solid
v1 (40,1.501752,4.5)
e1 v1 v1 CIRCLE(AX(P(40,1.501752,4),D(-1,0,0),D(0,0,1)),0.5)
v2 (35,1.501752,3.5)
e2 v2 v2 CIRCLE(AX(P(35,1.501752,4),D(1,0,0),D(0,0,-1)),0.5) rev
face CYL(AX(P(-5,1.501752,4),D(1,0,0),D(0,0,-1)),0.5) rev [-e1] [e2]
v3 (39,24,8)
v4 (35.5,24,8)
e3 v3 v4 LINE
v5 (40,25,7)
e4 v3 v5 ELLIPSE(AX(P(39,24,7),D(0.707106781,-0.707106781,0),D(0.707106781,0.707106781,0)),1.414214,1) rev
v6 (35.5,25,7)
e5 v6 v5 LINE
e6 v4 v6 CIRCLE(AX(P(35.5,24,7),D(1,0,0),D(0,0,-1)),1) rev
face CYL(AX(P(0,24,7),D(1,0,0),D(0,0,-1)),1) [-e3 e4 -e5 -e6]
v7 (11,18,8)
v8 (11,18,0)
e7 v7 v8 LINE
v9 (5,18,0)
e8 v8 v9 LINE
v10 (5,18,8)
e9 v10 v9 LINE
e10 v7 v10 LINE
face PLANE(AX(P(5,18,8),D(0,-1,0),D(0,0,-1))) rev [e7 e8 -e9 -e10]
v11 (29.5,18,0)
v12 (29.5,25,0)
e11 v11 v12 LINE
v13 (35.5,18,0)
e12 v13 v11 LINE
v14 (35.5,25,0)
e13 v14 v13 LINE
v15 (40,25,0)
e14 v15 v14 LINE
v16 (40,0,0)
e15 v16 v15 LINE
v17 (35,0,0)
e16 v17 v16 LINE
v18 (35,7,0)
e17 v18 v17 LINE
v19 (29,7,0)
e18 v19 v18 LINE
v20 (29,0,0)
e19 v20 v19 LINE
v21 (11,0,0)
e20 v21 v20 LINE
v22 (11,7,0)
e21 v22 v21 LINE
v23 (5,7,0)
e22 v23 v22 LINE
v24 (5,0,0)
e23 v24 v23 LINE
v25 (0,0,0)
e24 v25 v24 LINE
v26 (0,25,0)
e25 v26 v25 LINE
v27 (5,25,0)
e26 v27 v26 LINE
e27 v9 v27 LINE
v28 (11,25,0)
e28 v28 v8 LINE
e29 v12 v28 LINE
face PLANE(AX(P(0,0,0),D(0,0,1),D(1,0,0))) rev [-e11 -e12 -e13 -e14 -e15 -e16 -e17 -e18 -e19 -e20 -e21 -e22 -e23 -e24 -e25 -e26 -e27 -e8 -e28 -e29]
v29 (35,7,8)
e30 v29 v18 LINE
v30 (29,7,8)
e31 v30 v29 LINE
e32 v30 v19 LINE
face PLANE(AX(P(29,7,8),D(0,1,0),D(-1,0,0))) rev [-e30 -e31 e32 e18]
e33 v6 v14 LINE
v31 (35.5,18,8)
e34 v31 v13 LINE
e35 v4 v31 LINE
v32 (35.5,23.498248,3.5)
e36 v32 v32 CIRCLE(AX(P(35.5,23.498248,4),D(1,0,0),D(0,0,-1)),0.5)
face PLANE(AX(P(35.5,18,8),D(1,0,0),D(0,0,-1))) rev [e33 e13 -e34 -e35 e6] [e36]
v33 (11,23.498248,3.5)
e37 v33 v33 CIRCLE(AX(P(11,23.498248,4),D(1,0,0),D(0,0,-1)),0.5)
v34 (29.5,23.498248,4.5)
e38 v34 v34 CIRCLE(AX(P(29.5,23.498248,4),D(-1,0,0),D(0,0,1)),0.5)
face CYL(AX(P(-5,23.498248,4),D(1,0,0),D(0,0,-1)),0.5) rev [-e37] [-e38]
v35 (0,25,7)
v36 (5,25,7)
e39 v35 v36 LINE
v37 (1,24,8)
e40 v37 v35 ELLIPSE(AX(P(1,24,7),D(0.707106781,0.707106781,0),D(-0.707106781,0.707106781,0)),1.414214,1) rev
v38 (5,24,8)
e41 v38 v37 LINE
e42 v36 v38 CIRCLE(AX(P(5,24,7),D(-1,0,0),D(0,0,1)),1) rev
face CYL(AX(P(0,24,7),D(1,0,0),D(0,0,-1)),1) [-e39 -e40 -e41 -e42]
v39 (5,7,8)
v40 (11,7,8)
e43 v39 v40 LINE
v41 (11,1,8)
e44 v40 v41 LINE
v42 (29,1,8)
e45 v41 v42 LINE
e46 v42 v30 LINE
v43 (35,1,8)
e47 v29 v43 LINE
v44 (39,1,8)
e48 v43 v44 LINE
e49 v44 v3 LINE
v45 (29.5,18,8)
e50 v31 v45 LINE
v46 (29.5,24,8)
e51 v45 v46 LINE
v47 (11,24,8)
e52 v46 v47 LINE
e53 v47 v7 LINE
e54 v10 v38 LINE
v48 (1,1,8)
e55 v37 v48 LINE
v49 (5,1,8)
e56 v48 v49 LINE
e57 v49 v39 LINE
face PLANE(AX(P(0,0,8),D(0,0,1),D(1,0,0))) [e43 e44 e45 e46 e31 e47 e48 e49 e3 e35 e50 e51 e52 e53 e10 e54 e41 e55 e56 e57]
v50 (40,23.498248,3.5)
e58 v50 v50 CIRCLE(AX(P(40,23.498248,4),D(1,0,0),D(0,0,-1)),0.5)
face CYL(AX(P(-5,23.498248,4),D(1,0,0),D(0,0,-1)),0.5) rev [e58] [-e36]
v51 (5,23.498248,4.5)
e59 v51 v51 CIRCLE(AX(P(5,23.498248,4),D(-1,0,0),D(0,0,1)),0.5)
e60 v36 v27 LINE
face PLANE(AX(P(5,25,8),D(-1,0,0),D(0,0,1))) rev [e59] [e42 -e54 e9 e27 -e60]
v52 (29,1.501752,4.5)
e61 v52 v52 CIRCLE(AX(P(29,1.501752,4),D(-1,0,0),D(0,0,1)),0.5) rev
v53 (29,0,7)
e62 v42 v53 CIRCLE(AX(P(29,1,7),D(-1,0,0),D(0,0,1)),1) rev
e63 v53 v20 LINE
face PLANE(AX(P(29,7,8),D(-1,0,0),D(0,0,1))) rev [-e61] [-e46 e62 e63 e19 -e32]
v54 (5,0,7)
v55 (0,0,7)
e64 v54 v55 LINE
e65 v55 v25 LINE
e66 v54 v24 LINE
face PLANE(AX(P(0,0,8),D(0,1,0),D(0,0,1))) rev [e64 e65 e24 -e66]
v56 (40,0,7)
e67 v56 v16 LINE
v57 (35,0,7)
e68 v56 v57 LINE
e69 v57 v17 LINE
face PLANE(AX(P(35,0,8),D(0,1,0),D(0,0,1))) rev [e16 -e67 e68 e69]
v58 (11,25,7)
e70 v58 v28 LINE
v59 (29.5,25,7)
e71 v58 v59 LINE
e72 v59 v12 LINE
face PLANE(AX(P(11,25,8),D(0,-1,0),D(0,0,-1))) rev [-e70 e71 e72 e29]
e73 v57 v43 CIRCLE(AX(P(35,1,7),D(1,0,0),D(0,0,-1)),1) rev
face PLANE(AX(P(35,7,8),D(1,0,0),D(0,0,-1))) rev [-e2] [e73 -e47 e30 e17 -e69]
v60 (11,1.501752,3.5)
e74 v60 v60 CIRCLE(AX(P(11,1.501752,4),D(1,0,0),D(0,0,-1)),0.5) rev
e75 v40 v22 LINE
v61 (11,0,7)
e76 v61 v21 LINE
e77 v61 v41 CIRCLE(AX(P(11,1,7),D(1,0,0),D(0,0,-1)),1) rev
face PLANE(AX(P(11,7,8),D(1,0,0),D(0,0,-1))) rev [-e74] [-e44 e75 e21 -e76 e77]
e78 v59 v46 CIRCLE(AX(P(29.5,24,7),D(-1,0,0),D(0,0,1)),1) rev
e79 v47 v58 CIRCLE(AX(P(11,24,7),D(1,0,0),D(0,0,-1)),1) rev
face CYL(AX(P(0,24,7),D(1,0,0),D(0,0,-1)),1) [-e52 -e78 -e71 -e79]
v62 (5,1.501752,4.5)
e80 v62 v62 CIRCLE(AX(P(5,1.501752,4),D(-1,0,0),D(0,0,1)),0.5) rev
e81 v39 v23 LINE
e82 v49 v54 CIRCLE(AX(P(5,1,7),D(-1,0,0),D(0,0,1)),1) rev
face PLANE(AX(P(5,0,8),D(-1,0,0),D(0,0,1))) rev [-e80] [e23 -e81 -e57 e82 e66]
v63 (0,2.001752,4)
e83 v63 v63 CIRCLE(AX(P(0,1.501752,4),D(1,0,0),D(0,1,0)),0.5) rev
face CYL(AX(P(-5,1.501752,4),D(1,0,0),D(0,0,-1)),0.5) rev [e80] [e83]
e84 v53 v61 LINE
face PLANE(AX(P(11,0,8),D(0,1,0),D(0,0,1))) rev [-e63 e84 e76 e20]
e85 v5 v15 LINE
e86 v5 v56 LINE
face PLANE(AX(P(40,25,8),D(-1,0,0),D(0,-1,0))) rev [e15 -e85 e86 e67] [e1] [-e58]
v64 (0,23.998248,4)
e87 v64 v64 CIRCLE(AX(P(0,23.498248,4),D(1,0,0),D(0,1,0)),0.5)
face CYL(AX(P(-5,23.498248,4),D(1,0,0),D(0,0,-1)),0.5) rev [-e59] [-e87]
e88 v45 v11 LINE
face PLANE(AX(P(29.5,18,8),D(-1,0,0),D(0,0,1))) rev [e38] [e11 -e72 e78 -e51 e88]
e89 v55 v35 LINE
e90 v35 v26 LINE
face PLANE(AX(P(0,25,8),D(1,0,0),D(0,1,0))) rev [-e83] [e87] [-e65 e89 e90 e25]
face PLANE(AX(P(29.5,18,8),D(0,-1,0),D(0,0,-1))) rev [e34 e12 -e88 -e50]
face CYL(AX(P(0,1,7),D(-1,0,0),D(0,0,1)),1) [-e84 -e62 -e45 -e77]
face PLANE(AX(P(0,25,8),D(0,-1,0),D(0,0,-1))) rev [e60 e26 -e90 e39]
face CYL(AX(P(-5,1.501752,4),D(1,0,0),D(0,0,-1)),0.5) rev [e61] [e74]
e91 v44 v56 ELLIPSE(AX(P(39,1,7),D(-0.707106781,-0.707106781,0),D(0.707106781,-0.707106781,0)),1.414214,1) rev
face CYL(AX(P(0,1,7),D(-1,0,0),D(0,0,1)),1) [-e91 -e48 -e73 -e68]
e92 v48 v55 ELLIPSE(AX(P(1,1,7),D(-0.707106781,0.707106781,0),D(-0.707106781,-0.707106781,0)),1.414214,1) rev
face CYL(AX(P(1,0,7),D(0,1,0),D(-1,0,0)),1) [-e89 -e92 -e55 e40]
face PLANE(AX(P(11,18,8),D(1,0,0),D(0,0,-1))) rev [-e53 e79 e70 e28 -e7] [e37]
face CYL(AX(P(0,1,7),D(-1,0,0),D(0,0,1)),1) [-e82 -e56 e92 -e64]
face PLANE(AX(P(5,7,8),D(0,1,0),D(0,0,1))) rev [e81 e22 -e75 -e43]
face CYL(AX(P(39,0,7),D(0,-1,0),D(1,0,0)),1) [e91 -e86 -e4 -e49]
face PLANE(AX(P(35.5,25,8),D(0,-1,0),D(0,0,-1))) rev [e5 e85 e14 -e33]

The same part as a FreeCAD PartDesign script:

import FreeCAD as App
import Part
import Sketcher
from FreeCAD import Vector
Q = App.Units.Quantity


def edges_at(feature, points):
    """Names of the edges that pass closest to the given points."""
    edges = feature.Shape.Edges
    near = lambda p: min(range(len(edges)), key=lambda i: edges[i].distToShape(Part.Vertex(*p))[0])
    return sorted({f"Edge{near(p) + 1}" for p in points})

doc = App.newDocument("Part")
params = doc.addObject("Spreadsheet::Sheet", "Params")
for row, (alias, value) in enumerate([
    ("sketch1_width", "5 mm"),
    ("sketch1_width2", "6 mm"),
    ("sketch1_width3", "18 mm"),
    ("sketch1_height", "7 mm"),
    ("sketch1_height2", "25 mm"),
    ("pad1_length", "8 mm"),
    ("sketch2_diameter", "1 mm"),
    ("pocket1_length", "45 mm"),
    ("fillet_radius", "1 mm"),
    ("fillet2_radius", "1 mm"),
    ("fillet3_radius", "1 mm"),
    ("fillet4_radius", "1 mm"),
], start=1):
    params.set(f"A{row}", alias)
    params.set(f"B{row}", "=" + value)
    params.setAlias(f"B{row}", alias)

body = doc.addObject("PartDesign::Body", "Body")

sketch1 = body.newObject("Sketcher::SketchObject", "Sketch")
sketch1.AttachmentSupport = (doc.getObject("XY_Plane"), [""])
sketch1.MapMode = "FlatFace"
sketch1.addGeometry(Part.LineSegment(Vector(0, 0, 0), Vector(5, 0, 0)), False)
sketch1.addGeometry(Part.LineSegment(Vector(5, 0, 0), Vector(5, 7, 0)), False)
sketch1.addGeometry(Part.LineSegment(Vector(5, 7, 0), Vector(11, 7, 0)), False)
sketch1.addGeometry(Part.LineSegment(Vector(11, 7, 0), Vector(11, 0, 0)), False)
sketch1.addGeometry(Part.LineSegment(Vector(11, 0, 0), Vector(29, 0, 0)), False)
sketch1.addGeometry(Part.LineSegment(Vector(29, 0, 0), Vector(29, 7, 0)), False)
sketch1.addGeometry(Part.LineSegment(Vector(29, 7, 0), Vector(35, 7, 0)), False)
sketch1.addGeometry(Part.LineSegment(Vector(35, 7, 0), Vector(35, 0, 0)), False)
sketch1.addGeometry(Part.LineSegment(Vector(35, 0, 0), Vector(40, 0, 0)), False)
sketch1.addGeometry(Part.LineSegment(Vector(40, 0, 0), Vector(40, 25, 0)), False)
sketch1.addGeometry(Part.LineSegment(Vector(40, 25, 0), Vector(35.5, 25, 0)), False)
sketch1.addGeometry(Part.LineSegment(Vector(35.5, 25, 0), Vector(35.5, 18, 0)), False)
sketch1.addGeometry(Part.LineSegment(Vector(35.5, 18, 0), Vector(29.5, 18, 0)), False)
sketch1.addGeometry(Part.LineSegment(Vector(29.5, 18, 0), Vector(29.5, 25, 0)), False)
sketch1.addGeometry(Part.LineSegment(Vector(29.5, 25, 0), Vector(11, 25, 0)), False)
sketch1.addGeometry(Part.LineSegment(Vector(11, 25, 0), Vector(11, 18, 0)), False)
sketch1.addGeometry(Part.LineSegment(Vector(11, 18, 0), Vector(5, 18, 0)), False)
sketch1.addGeometry(Part.LineSegment(Vector(5, 18, 0), Vector(5, 25, 0)), False)
sketch1.addGeometry(Part.LineSegment(Vector(5, 25, 0), Vector(0, 25, 0)), False)
sketch1.addGeometry(Part.LineSegment(Vector(0, 25, 0), Vector(0, 0, 0)), False)
sketch1.addConstraint(Sketcher.Constraint("Coincident", 0, 2, 1, 1))
sketch1.addConstraint(Sketcher.Constraint("Coincident", 1, 2, 2, 1))
sketch1.addConstraint(Sketcher.Constraint("Coincident", 2, 2, 3, 1))
sketch1.addConstraint(Sketcher.Constraint("Coincident", 3, 2, 4, 1))
sketch1.addConstraint(Sketcher.Constraint("Coincident", 4, 2, 5, 1))
sketch1.addConstraint(Sketcher.Constraint("Coincident", 5, 2, 6, 1))
sketch1.addConstraint(Sketcher.Constraint("Coincident", 6, 2, 7, 1))
sketch1.addConstraint(Sketcher.Constraint("Coincident", 7, 2, 8, 1))
sketch1.addConstraint(Sketcher.Constraint("Coincident", 8, 2, 9, 1))
sketch1.addConstraint(Sketcher.Constraint("Coincident", 9, 2, 10, 1))
sketch1.addConstraint(Sketcher.Constraint("Coincident", 10, 2, 11, 1))
sketch1.addConstraint(Sketcher.Constraint("Coincident", 11, 2, 12, 1))
sketch1.addConstraint(Sketcher.Constraint("Coincident", 12, 2, 13, 1))
sketch1.addConstraint(Sketcher.Constraint("Coincident", 13, 2, 14, 1))
sketch1.addConstraint(Sketcher.Constraint("Coincident", 14, 2, 15, 1))
sketch1.addConstraint(Sketcher.Constraint("Coincident", 15, 2, 16, 1))
sketch1.addConstraint(Sketcher.Constraint("Coincident", 16, 2, 17, 1))
sketch1.addConstraint(Sketcher.Constraint("Coincident", 17, 2, 18, 1))
sketch1.addConstraint(Sketcher.Constraint("Coincident", 18, 2, 19, 1))
sketch1.addConstraint(Sketcher.Constraint("Coincident", 19, 2, 0, 1))
sketch1.addConstraint(Sketcher.Constraint("Horizontal", 0))
sketch1.addConstraint(Sketcher.Constraint("Vertical", 1))
sketch1.addConstraint(Sketcher.Constraint("Horizontal", 2))
sketch1.addConstraint(Sketcher.Constraint("Vertical", 3))
sketch1.addConstraint(Sketcher.Constraint("Horizontal", 4))
sketch1.addConstraint(Sketcher.Constraint("Vertical", 5))
sketch1.addConstraint(Sketcher.Constraint("Horizontal", 6))
sketch1.addConstraint(Sketcher.Constraint("Vertical", 7))
sketch1.addConstraint(Sketcher.Constraint("Horizontal", 8))
sketch1.addConstraint(Sketcher.Constraint("Vertical", 9))
sketch1.addConstraint(Sketcher.Constraint("Horizontal", 10))
sketch1.addConstraint(Sketcher.Constraint("Vertical", 11))
sketch1.addConstraint(Sketcher.Constraint("Horizontal", 12))
sketch1.addConstraint(Sketcher.Constraint("Vertical", 13))
sketch1.addConstraint(Sketcher.Constraint("Horizontal", 14))
sketch1.addConstraint(Sketcher.Constraint("Vertical", 15))
sketch1.addConstraint(Sketcher.Constraint("Horizontal", 16))
sketch1.addConstraint(Sketcher.Constraint("Vertical", 17))
sketch1.addConstraint(Sketcher.Constraint("Horizontal", 18))
sketch1.addConstraint(Sketcher.Constraint("Vertical", 19))
sketch1.addConstraint(Sketcher.Constraint("Coincident", 19, 2, -1, 1))
sketch1.addConstraint(Sketcher.Constraint("PointOnObject", 3, 2, -1))
sketch1.addConstraint(Sketcher.Constraint("PointOnObject", 7, 2, -1))
sketch1.addConstraint(Sketcher.Constraint("Horizontal", 2, 2, 5, 2))
sketch1.addConstraint(Sketcher.Constraint("Horizontal", 10, 2, 13, 2))
sketch1.addConstraint(Sketcher.Constraint("Horizontal", 12, 2, 15, 2))
sketch1.addConstraint(Sketcher.Constraint("Horizontal", 14, 2, 17, 2))
sketch1.addConstraint(Sketcher.Constraint("Vertical", 3, 2, 14, 2))
sketch1.addConstraint(Sketcher.Constraint("Vertical", 1, 2, 16, 2))
sketch1.addConstraint(Sketcher.Constraint("Equal", 2, 6))
sketch1.addConstraint(Sketcher.Constraint("Equal", 0, 8))
sketch1.addConstraint(Sketcher.Constraint("Equal", 6, 12))
sketch1.addConstraint(Sketcher.Constraint("Equal", 7, 11))
sketch1.addConstraint(Sketcher.Constraint("DistanceX", 0, 1, 0, 2, Q("5 mm")))
sketch1.addConstraint(Sketcher.Constraint("DistanceX", 2, 1, 2, 2, Q("6 mm")))
sketch1.addConstraint(Sketcher.Constraint("DistanceX", 4, 1, 4, 2, Q("18 mm")))
sketch1.addConstraint(Sketcher.Constraint("DistanceY", 1, 1, 1, 2, Q("7 mm")))
sketch1.addConstraint(Sketcher.Constraint("DistanceY", 9, 1, 9, 2, Q("25 mm")))
sketch1.addConstraint(Sketcher.Constraint("DistanceX", 10, 2, 10, 1, Q("4.5 mm")))
sketch1.setExpression("Constraints[53]", "Params.sketch1_width")
sketch1.setExpression("Constraints[54]", "Params.sketch1_width2")
sketch1.setExpression("Constraints[55]", "Params.sketch1_width3")
sketch1.setExpression("Constraints[56]", "Params.sketch1_height")
sketch1.setExpression("Constraints[57]", "Params.sketch1_height2")
pad1 = body.newObject("PartDesign::Pad", "Pad")
pad1.Profile = sketch1
pad1.setExpression("Length", "Params.pad1_length")

sketch2 = body.newObject("Sketcher::SketchObject", "Sketch001")
sketch2.AttachmentSupport = (doc.getObject("YZ_Plane"), [""])
sketch2.MapMode = "FlatFace"
sketch2.AttachmentOffset = App.Placement(Vector(0, 0, 40), App.Rotation())
sketch2.addGeometry(Part.Circle(Vector(23.5, 4, 0), Vector(0, 0, 1), 0.5), False)
sketch2.addGeometry(Part.Circle(Vector(1.5, 4, 0), Vector(0, 0, 1), 0.5), False)
sketch2.addConstraint(Sketcher.Constraint("Equal", 0, 1))
sketch2.addConstraint(Sketcher.Constraint("Horizontal", 0, 3, 1, 3))
sketch2.addConstraint(Sketcher.Constraint("Diameter", 0, Q("1 mm")))
sketch2.addConstraint(Sketcher.Constraint("DistanceY", -1, 1, 0, 3, Q("4 mm")))
sketch2.addConstraint(Sketcher.Constraint("DistanceX", -1, 1, 0, 3, Q("23.498248 mm")))
sketch2.addConstraint(Sketcher.Constraint("DistanceX", -1, 1, 1, 3, Q("1.501752 mm")))
sketch2.setExpression("Constraints[2]", "Params.sketch2_diameter")
pocket1 = body.newObject("PartDesign::Pocket", "Pocket")
pocket1.Profile = sketch2
pocket1.setExpression("Length", "Params.pocket1_length")
doc.recompute()

fillet = body.newObject("PartDesign::Fillet", "Fillet")
fillet.Base = (pocket1, edges_at(pocket1, [(20, 0, 8)]))
fillet.setExpression("Radius", "Params.fillet_radius")
doc.recompute()

fillet2 = body.newObject("PartDesign::Fillet", "Fillet001")
fillet2.Base = (fillet, edges_at(fillet, [(37.5, 0, 8), (40, 12.5, 8), (37.75, 25, 8)]))
fillet2.setExpression("Radius", "Params.fillet2_radius")
doc.recompute()

fillet3 = body.newObject("PartDesign::Fillet", "Fillet002")
fillet3.Base = (fillet2, edges_at(fillet2, [(20.25, 25, 8)]))
fillet3.setExpression("Radius", "Params.fillet3_radius")
doc.recompute()

fillet4 = body.newObject("PartDesign::Fillet", "Fillet003")
fillet4.Base = (fillet3, edges_at(fillet3, [(0, 12.5, 8), (2.5, 25, 8), (2.5, 0, 8)]))
fillet4.setExpression("Radius", "Params.fillet4_radius")

doc.recompute()
